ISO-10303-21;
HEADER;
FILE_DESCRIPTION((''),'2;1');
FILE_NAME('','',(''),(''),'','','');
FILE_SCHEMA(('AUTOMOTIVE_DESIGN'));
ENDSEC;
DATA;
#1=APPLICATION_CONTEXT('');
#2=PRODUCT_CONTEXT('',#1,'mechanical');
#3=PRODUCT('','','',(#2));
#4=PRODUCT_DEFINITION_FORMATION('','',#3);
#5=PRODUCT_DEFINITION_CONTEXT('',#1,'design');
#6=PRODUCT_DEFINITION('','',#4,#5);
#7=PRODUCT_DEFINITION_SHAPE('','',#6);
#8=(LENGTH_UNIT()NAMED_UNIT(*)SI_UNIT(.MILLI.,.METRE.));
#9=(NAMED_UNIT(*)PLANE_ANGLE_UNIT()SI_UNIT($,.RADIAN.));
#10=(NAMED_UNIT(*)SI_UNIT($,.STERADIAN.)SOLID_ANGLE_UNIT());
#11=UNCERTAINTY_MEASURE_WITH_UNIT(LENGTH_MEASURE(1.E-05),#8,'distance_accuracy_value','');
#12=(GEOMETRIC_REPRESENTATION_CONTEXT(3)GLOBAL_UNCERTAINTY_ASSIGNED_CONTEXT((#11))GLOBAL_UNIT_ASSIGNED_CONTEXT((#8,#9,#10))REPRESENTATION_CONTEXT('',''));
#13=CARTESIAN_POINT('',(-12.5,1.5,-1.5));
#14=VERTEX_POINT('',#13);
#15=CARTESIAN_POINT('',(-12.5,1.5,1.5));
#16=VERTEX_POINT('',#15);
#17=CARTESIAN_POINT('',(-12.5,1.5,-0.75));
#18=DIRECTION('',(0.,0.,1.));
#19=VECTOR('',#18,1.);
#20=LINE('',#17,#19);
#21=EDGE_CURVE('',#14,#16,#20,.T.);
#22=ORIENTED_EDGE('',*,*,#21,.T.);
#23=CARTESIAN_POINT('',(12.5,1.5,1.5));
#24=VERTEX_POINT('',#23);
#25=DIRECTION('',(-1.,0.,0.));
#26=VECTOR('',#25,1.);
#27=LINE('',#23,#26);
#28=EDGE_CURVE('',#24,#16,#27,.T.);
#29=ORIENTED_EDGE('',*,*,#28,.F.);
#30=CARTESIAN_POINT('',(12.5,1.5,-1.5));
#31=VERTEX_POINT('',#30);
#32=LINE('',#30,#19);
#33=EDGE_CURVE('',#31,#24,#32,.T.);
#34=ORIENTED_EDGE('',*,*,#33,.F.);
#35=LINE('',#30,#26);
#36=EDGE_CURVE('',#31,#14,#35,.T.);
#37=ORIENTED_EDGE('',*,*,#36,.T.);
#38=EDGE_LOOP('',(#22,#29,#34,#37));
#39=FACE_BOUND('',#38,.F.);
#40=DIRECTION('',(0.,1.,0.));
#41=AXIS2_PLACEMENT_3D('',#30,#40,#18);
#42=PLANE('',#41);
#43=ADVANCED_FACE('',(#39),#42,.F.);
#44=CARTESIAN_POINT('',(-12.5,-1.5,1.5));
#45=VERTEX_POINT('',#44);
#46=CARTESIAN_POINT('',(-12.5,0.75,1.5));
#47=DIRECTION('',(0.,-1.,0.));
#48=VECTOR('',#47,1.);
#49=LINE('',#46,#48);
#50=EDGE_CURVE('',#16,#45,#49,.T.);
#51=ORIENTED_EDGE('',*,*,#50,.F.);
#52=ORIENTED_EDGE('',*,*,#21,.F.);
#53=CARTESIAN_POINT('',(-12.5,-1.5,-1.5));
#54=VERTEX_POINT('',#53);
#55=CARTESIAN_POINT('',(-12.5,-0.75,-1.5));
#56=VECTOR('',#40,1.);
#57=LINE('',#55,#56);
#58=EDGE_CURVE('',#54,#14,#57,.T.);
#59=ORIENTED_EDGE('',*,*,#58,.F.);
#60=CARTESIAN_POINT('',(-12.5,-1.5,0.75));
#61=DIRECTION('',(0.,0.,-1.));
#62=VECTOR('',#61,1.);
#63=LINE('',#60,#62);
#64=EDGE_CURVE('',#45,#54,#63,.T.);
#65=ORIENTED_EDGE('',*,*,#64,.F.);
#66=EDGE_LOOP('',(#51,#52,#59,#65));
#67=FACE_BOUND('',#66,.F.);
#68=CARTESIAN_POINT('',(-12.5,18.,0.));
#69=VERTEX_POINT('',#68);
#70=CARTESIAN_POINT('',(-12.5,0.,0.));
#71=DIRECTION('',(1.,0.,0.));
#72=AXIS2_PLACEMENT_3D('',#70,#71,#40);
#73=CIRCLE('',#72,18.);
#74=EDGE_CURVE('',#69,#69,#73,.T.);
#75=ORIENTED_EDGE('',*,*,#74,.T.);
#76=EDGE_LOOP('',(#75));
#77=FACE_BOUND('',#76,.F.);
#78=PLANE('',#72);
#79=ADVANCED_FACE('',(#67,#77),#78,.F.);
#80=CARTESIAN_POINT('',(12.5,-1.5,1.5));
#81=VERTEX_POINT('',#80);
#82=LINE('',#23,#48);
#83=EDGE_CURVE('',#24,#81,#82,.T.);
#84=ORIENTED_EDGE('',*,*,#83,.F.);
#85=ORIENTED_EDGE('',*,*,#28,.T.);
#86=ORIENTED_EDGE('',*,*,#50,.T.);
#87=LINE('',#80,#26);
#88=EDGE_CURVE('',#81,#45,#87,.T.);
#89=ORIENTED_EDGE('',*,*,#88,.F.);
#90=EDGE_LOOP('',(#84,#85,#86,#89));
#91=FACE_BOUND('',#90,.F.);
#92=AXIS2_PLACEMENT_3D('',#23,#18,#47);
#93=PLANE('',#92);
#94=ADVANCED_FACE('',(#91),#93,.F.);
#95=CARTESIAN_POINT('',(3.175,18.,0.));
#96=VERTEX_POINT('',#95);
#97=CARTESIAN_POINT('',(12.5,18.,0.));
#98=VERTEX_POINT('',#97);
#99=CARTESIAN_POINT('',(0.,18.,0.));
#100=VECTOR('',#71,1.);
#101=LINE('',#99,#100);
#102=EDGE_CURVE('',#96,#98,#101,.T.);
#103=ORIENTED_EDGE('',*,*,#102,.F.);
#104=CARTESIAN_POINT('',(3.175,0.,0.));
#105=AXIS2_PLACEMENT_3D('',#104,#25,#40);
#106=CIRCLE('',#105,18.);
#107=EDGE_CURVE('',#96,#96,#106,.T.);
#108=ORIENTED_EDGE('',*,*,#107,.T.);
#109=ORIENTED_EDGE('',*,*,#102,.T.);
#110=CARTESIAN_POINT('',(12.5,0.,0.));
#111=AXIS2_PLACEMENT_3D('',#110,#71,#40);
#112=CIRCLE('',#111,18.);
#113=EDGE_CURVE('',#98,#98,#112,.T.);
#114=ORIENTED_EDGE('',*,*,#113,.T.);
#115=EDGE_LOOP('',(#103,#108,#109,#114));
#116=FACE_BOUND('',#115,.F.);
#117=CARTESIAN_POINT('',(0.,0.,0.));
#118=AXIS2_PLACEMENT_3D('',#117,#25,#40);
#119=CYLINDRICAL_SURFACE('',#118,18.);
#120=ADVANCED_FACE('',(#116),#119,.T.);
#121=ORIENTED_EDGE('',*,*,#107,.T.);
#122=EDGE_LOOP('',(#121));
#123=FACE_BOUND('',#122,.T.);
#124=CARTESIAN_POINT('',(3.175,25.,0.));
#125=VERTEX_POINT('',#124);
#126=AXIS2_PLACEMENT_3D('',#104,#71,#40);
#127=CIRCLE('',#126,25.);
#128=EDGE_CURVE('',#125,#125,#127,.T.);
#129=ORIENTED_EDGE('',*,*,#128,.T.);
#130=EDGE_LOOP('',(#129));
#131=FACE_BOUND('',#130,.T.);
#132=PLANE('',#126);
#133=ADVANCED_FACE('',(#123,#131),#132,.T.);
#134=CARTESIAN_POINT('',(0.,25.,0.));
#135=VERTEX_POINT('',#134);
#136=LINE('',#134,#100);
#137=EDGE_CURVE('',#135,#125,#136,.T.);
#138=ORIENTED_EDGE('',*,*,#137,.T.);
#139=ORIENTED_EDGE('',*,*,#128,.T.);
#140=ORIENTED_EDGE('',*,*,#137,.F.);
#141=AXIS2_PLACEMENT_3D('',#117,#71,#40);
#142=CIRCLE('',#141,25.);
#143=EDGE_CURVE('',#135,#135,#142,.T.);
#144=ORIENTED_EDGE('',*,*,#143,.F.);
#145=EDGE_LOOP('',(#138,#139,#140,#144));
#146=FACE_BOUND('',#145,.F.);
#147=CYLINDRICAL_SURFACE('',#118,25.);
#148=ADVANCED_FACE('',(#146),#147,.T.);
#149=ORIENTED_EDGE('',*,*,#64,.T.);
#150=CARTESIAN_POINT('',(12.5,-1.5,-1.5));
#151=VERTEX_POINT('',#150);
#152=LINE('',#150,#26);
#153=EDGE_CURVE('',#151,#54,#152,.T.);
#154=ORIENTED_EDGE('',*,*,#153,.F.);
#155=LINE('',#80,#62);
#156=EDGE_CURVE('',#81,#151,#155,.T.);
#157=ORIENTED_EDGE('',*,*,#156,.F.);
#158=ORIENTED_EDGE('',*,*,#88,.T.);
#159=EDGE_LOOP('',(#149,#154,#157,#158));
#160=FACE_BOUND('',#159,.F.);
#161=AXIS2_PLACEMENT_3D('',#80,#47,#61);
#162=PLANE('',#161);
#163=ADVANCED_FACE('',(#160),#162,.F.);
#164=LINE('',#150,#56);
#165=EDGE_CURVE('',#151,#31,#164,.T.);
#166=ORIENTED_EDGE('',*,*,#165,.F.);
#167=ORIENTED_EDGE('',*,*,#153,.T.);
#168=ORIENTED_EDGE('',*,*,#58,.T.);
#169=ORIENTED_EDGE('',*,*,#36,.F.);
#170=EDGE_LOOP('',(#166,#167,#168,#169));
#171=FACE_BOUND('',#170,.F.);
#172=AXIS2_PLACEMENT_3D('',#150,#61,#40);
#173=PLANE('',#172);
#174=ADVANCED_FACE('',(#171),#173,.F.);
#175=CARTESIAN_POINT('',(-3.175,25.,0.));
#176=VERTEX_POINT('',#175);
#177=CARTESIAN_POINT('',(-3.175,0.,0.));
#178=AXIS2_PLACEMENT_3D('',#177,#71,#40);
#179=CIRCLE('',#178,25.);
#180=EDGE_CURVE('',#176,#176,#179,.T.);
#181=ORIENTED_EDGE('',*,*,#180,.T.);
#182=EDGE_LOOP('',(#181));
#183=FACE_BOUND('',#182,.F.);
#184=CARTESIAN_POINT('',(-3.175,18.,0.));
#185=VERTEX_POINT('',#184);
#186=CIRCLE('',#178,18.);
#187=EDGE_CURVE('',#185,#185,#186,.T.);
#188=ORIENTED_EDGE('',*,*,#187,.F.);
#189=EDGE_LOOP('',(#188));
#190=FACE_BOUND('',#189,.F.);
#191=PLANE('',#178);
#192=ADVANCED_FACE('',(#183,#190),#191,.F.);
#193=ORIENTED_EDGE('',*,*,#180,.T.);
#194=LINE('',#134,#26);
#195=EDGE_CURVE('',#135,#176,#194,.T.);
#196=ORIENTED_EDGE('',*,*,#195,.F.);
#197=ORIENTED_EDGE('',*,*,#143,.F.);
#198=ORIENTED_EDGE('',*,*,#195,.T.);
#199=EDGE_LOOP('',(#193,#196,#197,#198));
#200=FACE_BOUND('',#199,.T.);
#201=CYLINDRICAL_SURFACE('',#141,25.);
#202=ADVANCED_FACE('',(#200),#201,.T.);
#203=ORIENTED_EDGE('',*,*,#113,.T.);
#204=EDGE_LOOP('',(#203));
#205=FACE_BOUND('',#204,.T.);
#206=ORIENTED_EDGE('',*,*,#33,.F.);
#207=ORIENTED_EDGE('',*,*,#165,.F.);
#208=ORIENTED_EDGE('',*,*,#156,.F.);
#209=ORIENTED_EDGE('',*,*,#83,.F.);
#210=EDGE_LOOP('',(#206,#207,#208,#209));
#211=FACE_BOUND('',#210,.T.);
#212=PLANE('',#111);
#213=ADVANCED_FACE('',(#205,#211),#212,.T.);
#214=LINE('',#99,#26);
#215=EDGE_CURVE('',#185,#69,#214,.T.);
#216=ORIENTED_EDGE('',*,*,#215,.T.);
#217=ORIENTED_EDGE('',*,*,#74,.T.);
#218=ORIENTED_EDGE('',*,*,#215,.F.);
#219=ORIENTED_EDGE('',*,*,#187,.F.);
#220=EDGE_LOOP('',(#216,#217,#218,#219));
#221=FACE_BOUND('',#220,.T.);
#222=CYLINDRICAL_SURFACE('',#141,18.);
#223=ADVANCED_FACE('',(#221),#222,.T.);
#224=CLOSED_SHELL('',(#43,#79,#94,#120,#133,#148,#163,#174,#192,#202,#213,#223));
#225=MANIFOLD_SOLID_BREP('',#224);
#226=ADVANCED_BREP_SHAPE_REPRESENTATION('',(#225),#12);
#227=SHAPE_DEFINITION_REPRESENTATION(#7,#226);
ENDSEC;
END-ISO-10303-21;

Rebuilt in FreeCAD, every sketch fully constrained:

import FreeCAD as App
import Part
import Sketcher


def add_polygon(sketch, points):
    """Adds a closed chain of lines whose ends are joined by coincident constraints."""
    first, n = sketch.GeometryCount, len(points)
    for a, b in zip(points, points[1:] + points[:1]):
        sketch.addGeometry(Part.LineSegment(App.Vector(*a, 0), App.Vector(*b, 0)), False)
    for i in range(n):
        sketch.addConstraint(Sketcher.Constraint("Coincident", first + i, 2, first + (i + 1) % n, 1))

doc = App.newDocument("Part")
params = doc.addObject("Spreadsheet::Sheet", "Params")
for row, (alias, value) in enumerate([
    ("sketch1_diameter", "36 mm"),
    ("pad1_length", "25 mm"),
    ("sketch2_diameter", "50 mm"),
    ("pad2_length", "6.35 mm"),
    ("sketch3_width", "3 mm"),
    ("pocket1_length", "25.4 mm"),
], start=1):
    params.set(f"A{row}", alias)
    params.set(f"B{row}", "=" + value)
    params.setAlias(f"B{row}", alias)

body = doc.addObject("PartDesign::Body", "Body")

# Sketch on YZ plane
sketch1 = body.newObject("Sketcher::SketchObject", "Sketch")
sketch1.AttachmentSupport = (doc.getObject("YZ_Plane"), [""])
sketch1.MapMode = "FlatFace"
sketch1.addGeometry(Part.Circle(App.Vector(0, 0, 0), App.Vector(0, 0, 1), 18), False)
sketch1.addConstraint(Sketcher.Constraint("Coincident", 0, 3, -1, 1))
sketch1.addConstraint(Sketcher.Constraint("Diameter", 0, 36.0))
sketch1.setExpression("Constraints[1]", "Params.sketch1_diameter")
pad1 = body.newObject("PartDesign::Pad", "Pad")
pad1.Profile = sketch1
pad1.setExpression("Length", "Params.pad1_length")
pad1.Midplane = True

# Sketch on YZ plane
sketch2 = body.newObject("Sketcher::SketchObject", "Sketch001")
sketch2.AttachmentSupport = (doc.getObject("YZ_Plane"), [""])
sketch2.MapMode = "FlatFace"
sketch2.addGeometry(Part.Circle(App.Vector(0, 0, 0), App.Vector(0, 0, 1), 25), False)
sketch2.addConstraint(Sketcher.Constraint("Coincident", 0, 3, -1, 1))
sketch2.addConstraint(Sketcher.Constraint("Diameter", 0, 50.0))
sketch2.setExpression("Constraints[1]", "Params.sketch2_diameter")
pad2 = body.newObject("PartDesign::Pad", "Pad001")
pad2.Profile = sketch2
pad2.setExpression("Length", "Params.pad2_length")
pad2.Midplane = True

# Sketch on YZ plane
sketch3 = body.newObject("Sketcher::SketchObject", "Sketch002")
sketch3.AttachmentSupport = (doc.getObject("YZ_Plane"), [""])
sketch3.MapMode = "FlatFace"
sketch3.AttachmentOffset = App.Placement(App.Vector(0, 0, 12.5), App.Rotation())
add_polygon(sketch3, [(1.5, 1.5), (-1.5, 1.5), (-1.5, -1.5), (1.5, -1.5)])  # lines 0-3
sketch3.addConstraint(Sketcher.Constraint("Horizontal", 0))
sketch3.addConstraint(Sketcher.Constraint("Vertical", 1))
sketch3.addConstraint(Sketcher.Constraint("Horizontal", 2))
sketch3.addConstraint(Sketcher.Constraint("Vertical", 3))
sketch3.addConstraint(Sketcher.Constraint("Symmetric", 0, 2, 2, 2, -1, 1))
sketch3.addConstraint(Sketcher.Constraint("Equal", 2, 1))
sketch3.addConstraint(Sketcher.Constraint("DistanceX", 0, 2, 0, 1, 3.0))
sketch3.setExpression("Constraints[10]", "Params.sketch3_width")
pocket1 = body.newObject("PartDesign::Pocket", "Pocket")
pocket1.Profile = sketch3
pocket1.setExpression("Length", "Params.pocket1_length")

doc.recompute()
